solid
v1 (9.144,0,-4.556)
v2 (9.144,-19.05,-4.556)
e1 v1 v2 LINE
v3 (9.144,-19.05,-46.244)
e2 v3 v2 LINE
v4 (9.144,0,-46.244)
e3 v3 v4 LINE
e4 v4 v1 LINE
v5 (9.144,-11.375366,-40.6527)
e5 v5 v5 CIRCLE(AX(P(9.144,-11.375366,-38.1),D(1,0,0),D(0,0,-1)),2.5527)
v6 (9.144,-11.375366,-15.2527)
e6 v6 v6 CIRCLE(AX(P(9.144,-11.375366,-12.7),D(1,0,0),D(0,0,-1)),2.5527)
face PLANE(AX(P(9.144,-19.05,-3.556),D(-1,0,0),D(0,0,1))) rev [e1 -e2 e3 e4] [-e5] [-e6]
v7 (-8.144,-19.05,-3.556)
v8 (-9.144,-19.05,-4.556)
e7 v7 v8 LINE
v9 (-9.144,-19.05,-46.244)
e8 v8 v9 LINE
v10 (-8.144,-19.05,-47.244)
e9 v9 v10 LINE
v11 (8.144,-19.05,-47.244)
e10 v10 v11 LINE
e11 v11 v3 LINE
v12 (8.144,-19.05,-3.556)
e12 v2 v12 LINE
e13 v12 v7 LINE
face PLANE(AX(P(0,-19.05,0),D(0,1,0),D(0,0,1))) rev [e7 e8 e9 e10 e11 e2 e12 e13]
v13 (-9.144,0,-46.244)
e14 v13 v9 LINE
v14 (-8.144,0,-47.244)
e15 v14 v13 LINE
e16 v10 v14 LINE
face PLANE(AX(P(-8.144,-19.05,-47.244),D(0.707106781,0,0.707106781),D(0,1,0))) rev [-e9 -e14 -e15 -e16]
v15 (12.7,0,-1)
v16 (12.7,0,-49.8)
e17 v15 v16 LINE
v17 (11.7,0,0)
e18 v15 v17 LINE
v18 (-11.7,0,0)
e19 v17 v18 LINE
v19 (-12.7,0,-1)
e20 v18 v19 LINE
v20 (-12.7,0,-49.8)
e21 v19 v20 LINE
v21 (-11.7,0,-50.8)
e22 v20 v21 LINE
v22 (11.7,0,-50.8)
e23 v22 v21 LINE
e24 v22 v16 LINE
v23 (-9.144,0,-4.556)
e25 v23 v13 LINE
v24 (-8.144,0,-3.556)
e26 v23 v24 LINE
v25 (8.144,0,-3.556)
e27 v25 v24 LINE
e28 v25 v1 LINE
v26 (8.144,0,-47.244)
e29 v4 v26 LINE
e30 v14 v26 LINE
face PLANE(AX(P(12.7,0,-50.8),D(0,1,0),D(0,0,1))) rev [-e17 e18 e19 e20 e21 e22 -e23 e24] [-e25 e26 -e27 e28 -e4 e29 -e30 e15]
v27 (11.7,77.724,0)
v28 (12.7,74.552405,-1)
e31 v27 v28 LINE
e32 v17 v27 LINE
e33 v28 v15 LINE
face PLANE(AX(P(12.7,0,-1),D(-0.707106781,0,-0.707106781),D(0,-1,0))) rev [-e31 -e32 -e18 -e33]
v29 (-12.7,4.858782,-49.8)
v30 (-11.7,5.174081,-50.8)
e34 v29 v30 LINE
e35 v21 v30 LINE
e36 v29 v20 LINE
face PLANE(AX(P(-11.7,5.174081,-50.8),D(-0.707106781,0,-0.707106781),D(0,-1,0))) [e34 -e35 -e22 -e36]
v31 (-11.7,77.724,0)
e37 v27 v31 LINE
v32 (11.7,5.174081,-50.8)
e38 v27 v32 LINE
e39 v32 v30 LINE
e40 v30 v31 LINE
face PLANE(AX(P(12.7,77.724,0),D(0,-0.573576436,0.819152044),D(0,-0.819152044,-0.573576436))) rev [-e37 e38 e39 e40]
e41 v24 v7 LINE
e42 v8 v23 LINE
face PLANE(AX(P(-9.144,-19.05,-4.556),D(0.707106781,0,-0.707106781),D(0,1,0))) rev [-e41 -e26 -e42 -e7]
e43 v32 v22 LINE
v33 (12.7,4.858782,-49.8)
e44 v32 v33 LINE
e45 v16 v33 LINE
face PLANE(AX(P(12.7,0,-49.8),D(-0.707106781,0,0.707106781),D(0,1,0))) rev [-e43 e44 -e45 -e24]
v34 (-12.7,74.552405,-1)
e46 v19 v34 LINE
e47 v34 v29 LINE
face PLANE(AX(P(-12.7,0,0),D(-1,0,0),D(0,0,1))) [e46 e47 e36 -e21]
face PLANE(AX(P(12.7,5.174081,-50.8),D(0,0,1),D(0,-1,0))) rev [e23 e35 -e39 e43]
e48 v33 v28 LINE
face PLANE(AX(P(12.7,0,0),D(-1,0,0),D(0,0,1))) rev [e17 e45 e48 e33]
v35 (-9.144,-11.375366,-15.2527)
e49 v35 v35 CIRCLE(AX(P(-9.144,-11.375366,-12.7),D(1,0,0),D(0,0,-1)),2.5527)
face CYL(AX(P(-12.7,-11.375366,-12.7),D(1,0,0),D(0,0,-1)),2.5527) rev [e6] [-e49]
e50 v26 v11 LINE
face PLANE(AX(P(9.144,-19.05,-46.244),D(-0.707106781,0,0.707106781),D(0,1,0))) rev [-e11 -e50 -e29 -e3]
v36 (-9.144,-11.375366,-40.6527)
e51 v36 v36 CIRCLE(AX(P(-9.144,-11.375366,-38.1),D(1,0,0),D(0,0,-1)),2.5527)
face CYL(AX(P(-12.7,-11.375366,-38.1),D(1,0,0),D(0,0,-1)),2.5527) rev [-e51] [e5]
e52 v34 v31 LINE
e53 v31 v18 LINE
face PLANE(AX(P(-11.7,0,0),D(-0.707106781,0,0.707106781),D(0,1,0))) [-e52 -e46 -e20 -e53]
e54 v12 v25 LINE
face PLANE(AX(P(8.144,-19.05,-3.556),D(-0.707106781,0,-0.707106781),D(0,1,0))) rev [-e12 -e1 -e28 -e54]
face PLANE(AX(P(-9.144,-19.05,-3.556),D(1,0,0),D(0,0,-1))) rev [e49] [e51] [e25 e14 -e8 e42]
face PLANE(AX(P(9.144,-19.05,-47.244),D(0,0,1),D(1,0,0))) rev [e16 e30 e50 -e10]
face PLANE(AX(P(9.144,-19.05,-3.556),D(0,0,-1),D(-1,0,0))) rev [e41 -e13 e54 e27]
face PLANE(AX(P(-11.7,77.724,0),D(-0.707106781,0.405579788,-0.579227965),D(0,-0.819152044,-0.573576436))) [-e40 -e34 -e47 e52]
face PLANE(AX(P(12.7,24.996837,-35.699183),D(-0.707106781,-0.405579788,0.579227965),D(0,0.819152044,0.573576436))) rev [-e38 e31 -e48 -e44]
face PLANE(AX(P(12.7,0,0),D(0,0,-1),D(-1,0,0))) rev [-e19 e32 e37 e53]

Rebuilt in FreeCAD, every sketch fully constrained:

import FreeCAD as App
import Part
import Sketcher

V = App.Vector
Q = App.Units.Quantity


def edges_at(feature, points):
    """Names of the edges that pass closest to the given points."""
    edges = feature.Shape.Edges
    near = lambda p: min(range(len(edges)), key=lambda i: edges[i].distToShape(Part.Vertex(*p))[0])
    return sorted({f"Edge{near(p) + 1}" for p in points})


def add_polygon(sketch, points):
    """Adds a closed chain of lines whose ends are joined by coincident constraints."""
    first, n = sketch.GeometryCount, len(points)
    for a, b in zip(points, points[1:] + points[:1]):
        sketch.addGeometry(Part.LineSegment(App.Vector(*a, 0), App.Vector(*b, 0)), False)
    for i in range(n):
        sketch.addConstraint(Sketcher.Constraint("Coincident", first + i, 2, first + (i + 1) % n, 1))

doc = App.newDocument("Part")
params = doc.addObject("Spreadsheet::Sheet", "Params")
for row, (alias, value) in enumerate([
    ("sketch1_height", "2 in"),
    ("sketch1_width", "3.06 in"),
    ("pad1_length", "1 in"),
    ("sketch2_width", "0.72 in"),
    ("sketch2_height", "1.72 in"),
    ("pad2_length", "0.75 in"),
    ("sketch3_diameter", "0.201 in"),
    ("chamfer_size", "1 mm"),
], start=1):
    params.set(f"A{row}", alias)
    params.set(f"B{row}", "=" + value)
    params.setAlias(f"B{row}", alias)

body = doc.addObject("PartDesign::Body", "Body")

# Sketch on YZ plane
sketch1 = body.newObject("Sketcher::SketchObject", "Sketch")
sketch1.AttachmentSupport = (doc.getObject("YZ_Plane"), [""])
sketch1.MapMode = "FlatFace"
add_polygon(sketch1, [(78, 0), (0, 0), (0, -51), (5, -51)])  # lines 0-3
sketch1.addConstraint([
    Sketcher.Constraint("Horizontal", 0),
    Sketcher.Constraint("Vertical", 1),
    Sketcher.Constraint("Horizontal", 2),
    Sketcher.Constraint("Coincident", 0, 2, -1, 1),
    Sketcher.Constraint("DistanceY", 1, 2, 1, 1, Q("2 in")),
    Sketcher.Constraint("Angle", 3, Q("35 deg")),
    Sketcher.Constraint("DistanceX", 0, 2, 0, 1, Q("3.06 in")),
])
sketch1.setExpression("Constraints[8]", "Params.sketch1_height")
sketch1.setExpression("Constraints[10]", "Params.sketch1_width")
pad1 = body.newObject("PartDesign::Pad", "Pad")
pad1.Profile = sketch1
pad1.setExpression("Length", "Params.pad1_length")
pad1.Midplane = True

# Sketch on XZ plane
sketch2 = body.newObject("Sketcher::SketchObject", "Sketch001")
sketch2.AttachmentSupport = (doc.getObject("XZ_Plane"), [""])
sketch2.MapMode = "FlatFace"
add_polygon(sketch2, [(-9, -4), (-9, -47), (9, -47), (9, -4)])  # lines 0-3
sketch2.addConstraint([
    Sketcher.Constraint("Vertical", 0),
    Sketcher.Constraint("Horizontal", 1),
    Sketcher.Constraint("Vertical", 2),
    Sketcher.Constraint("Horizontal", 3),
    Sketcher.Constraint("DistanceX", 1, 1, 1, 2, Q("0.72 in")),
    Sketcher.Constraint("DistanceY", 0, 2, 0, 1, Q("1.72 in")),
    Sketcher.Constraint("DistanceX", 0, 2, -1, 1, Q("0.36 in")),
    Sketcher.Constraint("DistanceY", 0, 2, -1, 1, Q("1.86 in")),
])
sketch2.setExpression("Constraints[8]", "Params.sketch2_width")
sketch2.setExpression("Constraints[9]", "Params.sketch2_height")
pad2 = body.newObject("PartDesign::Pad", "Pad001")
pad2.Profile = sketch2
pad2.setExpression("Length", "Params.pad2_length")

# Sketch on YZ plane
sketch3 = body.newObject("Sketcher::SketchObject", "Sketch002")
sketch3.AttachmentSupport = (doc.getObject("YZ_Plane"), [""])
sketch3.MapMode = "FlatFace"
sketch3.AttachmentOffset = App.Placement(V(0, 0, 0.36 * 25.4), App.Rotation())
sketch3.addGeometry([
    Part.Circle(V(-11.4, -38.1, 0), V(0, 0, 1), 2.6),
    Part.Circle(V(-11.4, -12.7, 0), V(0, 0, 1), 2.6),
], False)
sketch3.addConstraint([
    Sketcher.Constraint("Equal", 0, 1),
    Sketcher.Constraint("Vertical", 0, 3, 1, 3),
    Sketcher.Constraint("Diameter", 0, Q("0.201 in")),
    Sketcher.Constraint("DistanceY", 0, 3, 1, 3, Q("1 in")),
    Sketcher.Constraint("DistanceY", 0, 3, -1, 1, Q("1.5 in")),
    Sketcher.Constraint("DistanceX", 0, 3, -1, 1, 11.375366),
])
sketch3.setExpression("Constraints[2]", "Params.sketch3_diameter")
pocket1 = body.newObject("PartDesign::Pocket", "Pocket")
pocket1.Profile = sketch3
pocket1.Type = "ThroughAll"
doc.recompute()

chamfer = body.newObject("PartDesign::Chamfer", "Chamfer")
chamfer.Base = (pocket1, edges_at(pocket1, [
    (12.7, 41.449, -25.4),
    (9.144, -9.525, -47.244),
    (9.144, -9.525, -3.556),
    (-9.144, -9.525, -3.556),
    (12.7, 38.862, 0),
    (-9.144, -9.525, -47.244),
    (-12.7, 38.862, 0),
    (-12.7, 41.449, -25.4),
    (-12.7, 2.587, -50.8),
    (12.7, 2.587, -50.8),
]))
chamfer.setExpression("Size", "Params.chamfer_size")

doc.recompute()
